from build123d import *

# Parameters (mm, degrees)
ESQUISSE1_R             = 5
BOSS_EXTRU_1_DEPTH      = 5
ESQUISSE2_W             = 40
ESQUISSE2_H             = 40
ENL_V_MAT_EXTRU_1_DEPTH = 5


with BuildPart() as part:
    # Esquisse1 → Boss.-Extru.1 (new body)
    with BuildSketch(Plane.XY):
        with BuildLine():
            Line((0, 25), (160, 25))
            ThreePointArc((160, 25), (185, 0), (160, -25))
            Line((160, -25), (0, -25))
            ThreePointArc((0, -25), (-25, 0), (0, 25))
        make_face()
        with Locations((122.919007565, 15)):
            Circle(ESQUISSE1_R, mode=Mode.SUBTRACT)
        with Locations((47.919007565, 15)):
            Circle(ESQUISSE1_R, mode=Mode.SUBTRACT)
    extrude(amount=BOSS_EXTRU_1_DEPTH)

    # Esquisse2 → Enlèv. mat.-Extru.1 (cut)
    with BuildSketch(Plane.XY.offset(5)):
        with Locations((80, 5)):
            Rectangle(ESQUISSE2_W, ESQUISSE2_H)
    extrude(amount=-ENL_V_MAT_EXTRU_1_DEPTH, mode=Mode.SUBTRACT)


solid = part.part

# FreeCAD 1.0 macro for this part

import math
import FreeCAD as App
import Part
import Sketcher

doc = App.newDocument("Part")
body = doc.addObject("PartDesign::Body", "Body")

sketch1 = body.newObject("Sketcher::SketchObject", "Sketch")
sketch1.AttachmentSupport = (doc.getObject("XY_Plane"), [""])
sketch1.MapMode = "FlatFace"
sketch1.addGeometry(Part.LineSegment(App.Vector(160, 25, 0), App.Vector(0, 25, 0)), False)
sketch1.addGeometry(Part.ArcOfCircle(Part.Circle(App.Vector(0, 0, 0), App.Vector(0, 0, 1), 25), math.radians(90), math.radians(270)), False)
sketch1.addGeometry(Part.LineSegment(App.Vector(0, -25, 0), App.Vector(160, -25, 0)), False)
sketch1.addGeometry(Part.ArcOfCircle(Part.Circle(App.Vector(160, 0, 0), App.Vector(0, 0, 1), 25), math.radians(-90), math.radians(90)), False)
sketch1.addGeometry(Part.Circle(App.Vector(123, 15, 0), App.Vector(0, 0, 1), 5), False)
sketch1.addGeometry(Part.Circle(App.Vector(48, 15, 0), App.Vector(0, 0, 1), 5), False)
sketch1.addConstraint(Sketcher.Constraint("Tangent", 0, 2, 1, 1))
sketch1.addConstraint(Sketcher.Constraint("Tangent", 1, 2, 2, 1))
sketch1.addConstraint(Sketcher.Constraint("Tangent", 2, 2, 3, 1))
sketch1.addConstraint(Sketcher.Constraint("Tangent", 3, 2, 0, 1))
sketch1.addConstraint(Sketcher.Constraint("Horizontal", 0))
sketch1.addConstraint(Sketcher.Constraint("Horizontal", 2))
sketch1.addConstraint(Sketcher.Constraint("Coincident", 1, 3, -1, 1))
sketch1.addConstraint(Sketcher.Constraint("Equal", 4, 5))
sketch1.addConstraint(Sketcher.Constraint("Horizontal", 4, 3, 5, 3))
sketch1.addConstraint(Sketcher.Constraint("Diameter", 4, 10.0))
sketch1.addConstraint(Sketcher.Constraint("Radius", 1, 25.0))
sketch1.addConstraint(Sketcher.Constraint("DistanceX", 0, 2, 0, 1, 160.0))
sketch1.addConstraint(Sketcher.Constraint("DistanceY", -1, 1, 4, 3, 15.0))
sketch1.addConstraint(Sketcher.Constraint("DistanceX", 5, 3, 4, 3, 75.0))
sketch1.addConstraint(Sketcher.Constraint("DistanceX", -1, 1, 4, 3, 122.919008))
pad1 = body.newObject("PartDesign::Pad", "Pad")
pad1.Profile = sketch1
pad1.Length = 5

sketch2 = body.newObject("Sketcher::SketchObject", "Sketch001")
sketch2.AttachmentSupport = (doc.getObject("XY_Plane"), [""])
sketch2.MapMode = "FlatFace"
sketch2.AttachmentOffset = App.Placement(App.Vector(0, 0, 5), App.Rotation())
sketch2.addGeometry(Part.LineSegment(App.Vector(60, 25, 0), App.Vector(60, -15, 0)), False)
sketch2.addGeometry(Part.LineSegment(App.Vector(60, -15, 0), App.Vector(100, -15, 0)), False)
sketch2.addGeometry(Part.LineSegment(App.Vector(100, -15, 0), App.Vector(100, 25, 0)), False)
sketch2.addGeometry(Part.LineSegment(App.Vector(100, 25, 0), App.Vector(60, 25, 0)), False)
sketch2.addConstraint(Sketcher.Constraint("Coincident", 0, 2, 1, 1))
sketch2.addConstraint(Sketcher.Constraint("Coincident", 1, 2, 2, 1))
sketch2.addConstraint(Sketcher.Constraint("Coincident", 2, 2, 3, 1))
sketch2.addConstraint(Sketcher.Constraint("Coincident", 3, 2, 0, 1))
sketch2.addConstraint(Sketcher.Constraint("Vertical", 0))
sketch2.addConstraint(Sketcher.Constraint("Horizontal", 1))
sketch2.addConstraint(Sketcher.Constraint("Vertical", 2))
sketch2.addConstraint(Sketcher.Constraint("Horizontal", 3))
sketch2.addConstraint(Sketcher.Constraint("Equal", 3, 0))
sketch2.addConstraint(Sketcher.Constraint("DistanceX", 1, 1, 1, 2, 40.0))
sketch2.addConstraint(Sketcher.Constraint("DistanceX", -1, 1, 0, 2, 60.0))
sketch2.addConstraint(Sketcher.Constraint("DistanceY", 0, 2, -1, 1, 15.0))
pocket1 = body.newObject("PartDesign::Pocket", "Pocket")
pocket1.Profile = sketch2
pocket1.Length = 5

doc.recompute()
